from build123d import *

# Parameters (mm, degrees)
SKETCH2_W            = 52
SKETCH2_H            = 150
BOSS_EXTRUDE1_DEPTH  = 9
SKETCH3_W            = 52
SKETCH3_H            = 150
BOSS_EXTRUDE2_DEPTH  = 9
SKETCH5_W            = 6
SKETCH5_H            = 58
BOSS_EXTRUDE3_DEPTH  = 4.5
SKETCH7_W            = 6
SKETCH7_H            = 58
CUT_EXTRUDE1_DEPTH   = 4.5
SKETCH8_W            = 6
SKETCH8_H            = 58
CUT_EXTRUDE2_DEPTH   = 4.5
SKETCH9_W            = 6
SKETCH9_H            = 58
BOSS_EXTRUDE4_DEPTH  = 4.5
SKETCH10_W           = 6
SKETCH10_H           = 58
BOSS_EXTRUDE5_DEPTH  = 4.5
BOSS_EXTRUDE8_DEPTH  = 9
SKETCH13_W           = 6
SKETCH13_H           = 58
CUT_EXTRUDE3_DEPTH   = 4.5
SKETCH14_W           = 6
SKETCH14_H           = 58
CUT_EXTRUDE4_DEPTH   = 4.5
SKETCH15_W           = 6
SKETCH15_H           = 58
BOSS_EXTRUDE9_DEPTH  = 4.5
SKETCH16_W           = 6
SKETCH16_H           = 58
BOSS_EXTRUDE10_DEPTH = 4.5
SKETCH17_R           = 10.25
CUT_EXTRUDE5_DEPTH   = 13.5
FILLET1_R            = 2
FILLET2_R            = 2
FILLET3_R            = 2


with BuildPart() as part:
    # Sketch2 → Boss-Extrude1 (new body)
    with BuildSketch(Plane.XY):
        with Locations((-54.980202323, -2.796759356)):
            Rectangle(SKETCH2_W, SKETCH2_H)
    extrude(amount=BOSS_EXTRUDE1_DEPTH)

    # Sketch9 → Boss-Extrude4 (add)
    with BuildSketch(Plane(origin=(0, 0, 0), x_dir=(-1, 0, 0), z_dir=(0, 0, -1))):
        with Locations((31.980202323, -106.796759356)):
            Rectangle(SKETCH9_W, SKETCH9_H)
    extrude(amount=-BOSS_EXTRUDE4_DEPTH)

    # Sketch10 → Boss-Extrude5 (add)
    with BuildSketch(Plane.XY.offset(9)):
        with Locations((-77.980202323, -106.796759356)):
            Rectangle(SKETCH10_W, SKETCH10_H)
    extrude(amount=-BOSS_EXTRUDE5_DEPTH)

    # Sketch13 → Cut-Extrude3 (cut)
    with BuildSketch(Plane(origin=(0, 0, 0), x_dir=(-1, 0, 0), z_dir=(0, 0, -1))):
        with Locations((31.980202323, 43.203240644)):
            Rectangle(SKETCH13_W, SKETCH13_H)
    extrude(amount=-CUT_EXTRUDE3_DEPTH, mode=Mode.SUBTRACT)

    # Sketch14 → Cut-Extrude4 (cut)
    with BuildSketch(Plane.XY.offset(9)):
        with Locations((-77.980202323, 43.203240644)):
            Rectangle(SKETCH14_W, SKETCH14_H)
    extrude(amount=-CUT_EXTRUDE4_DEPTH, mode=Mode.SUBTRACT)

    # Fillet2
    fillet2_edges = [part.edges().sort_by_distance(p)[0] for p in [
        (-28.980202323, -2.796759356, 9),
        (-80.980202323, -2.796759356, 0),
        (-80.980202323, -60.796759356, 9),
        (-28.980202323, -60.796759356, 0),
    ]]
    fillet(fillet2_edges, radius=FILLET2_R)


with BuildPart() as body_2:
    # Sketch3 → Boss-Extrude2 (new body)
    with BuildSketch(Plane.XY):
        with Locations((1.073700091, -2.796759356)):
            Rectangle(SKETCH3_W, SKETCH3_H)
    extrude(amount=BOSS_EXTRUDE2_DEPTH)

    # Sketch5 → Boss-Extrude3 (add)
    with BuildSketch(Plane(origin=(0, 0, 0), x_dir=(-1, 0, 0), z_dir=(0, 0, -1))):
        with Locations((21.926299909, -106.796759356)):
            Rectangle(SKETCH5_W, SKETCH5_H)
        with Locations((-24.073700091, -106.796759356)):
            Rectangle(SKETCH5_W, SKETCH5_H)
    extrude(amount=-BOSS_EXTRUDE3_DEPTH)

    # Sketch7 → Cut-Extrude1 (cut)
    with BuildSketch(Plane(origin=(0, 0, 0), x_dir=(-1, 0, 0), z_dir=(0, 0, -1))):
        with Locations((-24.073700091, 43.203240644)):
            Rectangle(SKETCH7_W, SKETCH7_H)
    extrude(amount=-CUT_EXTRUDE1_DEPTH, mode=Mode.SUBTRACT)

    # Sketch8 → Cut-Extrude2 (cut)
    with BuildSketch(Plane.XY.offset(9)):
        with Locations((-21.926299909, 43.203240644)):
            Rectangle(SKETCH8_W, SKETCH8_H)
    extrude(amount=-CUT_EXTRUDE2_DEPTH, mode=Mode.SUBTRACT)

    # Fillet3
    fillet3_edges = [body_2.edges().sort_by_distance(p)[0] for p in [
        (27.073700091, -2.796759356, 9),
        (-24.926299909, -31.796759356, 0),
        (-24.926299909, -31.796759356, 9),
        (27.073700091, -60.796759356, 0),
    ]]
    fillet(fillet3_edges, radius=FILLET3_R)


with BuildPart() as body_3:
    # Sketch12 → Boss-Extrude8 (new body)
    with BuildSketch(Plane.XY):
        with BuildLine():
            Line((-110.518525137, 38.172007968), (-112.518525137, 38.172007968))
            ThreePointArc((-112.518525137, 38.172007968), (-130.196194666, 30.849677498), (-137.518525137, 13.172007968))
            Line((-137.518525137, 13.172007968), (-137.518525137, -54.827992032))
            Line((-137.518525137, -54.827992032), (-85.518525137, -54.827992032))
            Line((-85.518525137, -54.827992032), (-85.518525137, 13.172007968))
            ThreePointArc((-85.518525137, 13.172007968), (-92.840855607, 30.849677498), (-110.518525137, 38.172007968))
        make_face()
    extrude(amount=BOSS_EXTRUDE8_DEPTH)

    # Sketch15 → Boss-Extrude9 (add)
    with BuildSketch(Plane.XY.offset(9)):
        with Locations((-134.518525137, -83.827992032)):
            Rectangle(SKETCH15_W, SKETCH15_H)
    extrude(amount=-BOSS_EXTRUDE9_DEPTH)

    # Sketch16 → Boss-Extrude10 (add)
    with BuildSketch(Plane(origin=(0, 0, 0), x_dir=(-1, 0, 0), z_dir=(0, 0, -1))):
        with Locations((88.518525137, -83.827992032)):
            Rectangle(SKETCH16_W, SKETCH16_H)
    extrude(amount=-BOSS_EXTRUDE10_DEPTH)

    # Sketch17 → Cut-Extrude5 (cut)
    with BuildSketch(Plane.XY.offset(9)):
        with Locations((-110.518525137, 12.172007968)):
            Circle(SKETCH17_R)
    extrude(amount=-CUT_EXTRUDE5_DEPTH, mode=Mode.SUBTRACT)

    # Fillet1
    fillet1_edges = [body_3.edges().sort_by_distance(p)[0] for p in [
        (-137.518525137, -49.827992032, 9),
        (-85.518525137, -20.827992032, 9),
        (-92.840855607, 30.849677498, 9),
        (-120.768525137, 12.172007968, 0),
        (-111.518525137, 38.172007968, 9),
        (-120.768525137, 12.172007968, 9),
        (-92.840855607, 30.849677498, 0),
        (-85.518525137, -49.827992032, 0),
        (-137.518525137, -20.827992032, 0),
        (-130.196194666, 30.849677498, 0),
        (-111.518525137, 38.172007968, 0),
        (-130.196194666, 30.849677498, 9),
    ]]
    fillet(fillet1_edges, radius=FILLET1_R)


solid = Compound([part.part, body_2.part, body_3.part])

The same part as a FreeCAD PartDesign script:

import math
import FreeCAD as App
import Part
import Sketcher
from FreeCAD import Vector
Q = App.Units.Quantity


def edges_at(feature, points):
    """Names of the edges that pass closest to the given points."""
    edges = feature.Shape.Edges
    near = lambda p: min(range(len(edges)), key=lambda i: edges[i].distToShape(Part.Vertex(*p))[0])
    return sorted({f"Edge{near(p) + 1}" for p in points})

doc = App.newDocument("Part")
body = doc.addObject("PartDesign::Body", "Body")

# Sketch on XY plane
sketch1 = body.newObject("Sketcher::SketchObject", "Sketch")
sketch1.AttachmentSupport = (doc.getObject("XY_Plane"), [""])
sketch1.MapMode = "FlatFace"
sketch1.addGeometry([
    Part.LineSegment(Vector(-81, 72, 0), Vector(-81, -78, 0)),
    Part.LineSegment(Vector(-81, -78, 0), Vector(-29, -78, 0)),
    Part.LineSegment(Vector(-29, -78, 0), Vector(-29, 72, 0)),
    Part.LineSegment(Vector(-29, 72, 0), Vector(-81, 72, 0)),
], False)
sketch1.addConstraint([
    Sketcher.Constraint("Coincident", 0, 2, 1, 1),
    Sketcher.Constraint("Coincident", 1, 2, 2, 1),
    Sketcher.Constraint("Coincident", 2, 2, 3, 1),
    Sketcher.Constraint("Coincident", 3, 2, 0, 1),
    Sketcher.Constraint("Vertical", 0),
    Sketcher.Constraint("Horizontal", 1),
    Sketcher.Constraint("Vertical", 2),
    Sketcher.Constraint("Horizontal", 3),
    Sketcher.Constraint("DistanceX", 1, 1, 1, 2, Q("52 mm")),
    Sketcher.Constraint("DistanceY", 0, 2, 0, 1, Q("150 mm")),
    Sketcher.Constraint("DistanceY", 0, 2, -1, 1, Q("77.796759 mm")),
    Sketcher.Constraint("DistanceX", 0, 2, -1, 1, Q("80.980202 mm")),
])
pad1 = body.newObject("PartDesign::Pad", "Pad")
pad1.Profile = sketch1
pad1.Length = 9

# Sketch on XY plane
sketch2 = body.newObject("Sketcher::SketchObject", "Sketch001")
sketch2.AttachmentSupport = (doc.getObject("XY_Plane"), [""])
sketch2.MapMode = "FlatFace"
sketch2.addGeometry([
    Part.LineSegment(Vector(-29, -78, 0), Vector(-29, -136, 0)),
    Part.LineSegment(Vector(-29, -136, 0), Vector(-35, -136, 0)),
    Part.LineSegment(Vector(-35, -136, 0), Vector(-35, -78, 0)),
    Part.LineSegment(Vector(-35, -78, 0), Vector(-29, -78, 0)),
], False)
sketch2.addConstraint([
    Sketcher.Constraint("Coincident", 0, 2, 1, 1),
    Sketcher.Constraint("Coincident", 1, 2, 2, 1),
    Sketcher.Constraint("Coincident", 2, 2, 3, 1),
    Sketcher.Constraint("Coincident", 3, 2, 0, 1),
    Sketcher.Constraint("Vertical", 0),
    Sketcher.Constraint("Horizontal", 1),
    Sketcher.Constraint("Vertical", 2),
    Sketcher.Constraint("Horizontal", 3),
    Sketcher.Constraint("DistanceX", 1, 2, 1, 1, Q("6 mm")),
    Sketcher.Constraint("DistanceY", 0, 2, 0, 1, Q("58 mm")),
    Sketcher.Constraint("DistanceY", 0, 2, -1, 1, Q("135.796759 mm")),
    Sketcher.Constraint("DistanceX", 0, 2, -1, 1, Q("28.980202 mm")),
])
pad2 = body.newObject("PartDesign::Pad", "Pad001")
pad2.Profile = sketch2
pad2.Length = 4.5

# Sketch on XY plane
sketch3 = body.newObject("Sketcher::SketchObject", "Sketch002")
sketch3.AttachmentSupport = (doc.getObject("XY_Plane"), [""])
sketch3.MapMode = "FlatFace"
sketch3.AttachmentOffset = App.Placement(Vector(0, 0, 9), App.Rotation())
sketch3.addGeometry([
    Part.LineSegment(Vector(-81, -78, 0), Vector(-81, -136, 0)),
    Part.LineSegment(Vector(-81, -136, 0), Vector(-75, -136, 0)),
    Part.LineSegment(Vector(-75, -136, 0), Vector(-75, -78, 0)),
    Part.LineSegment(Vector(-75, -78, 0), Vector(-81, -78, 0)),
], False)
sketch3.addConstraint([
    Sketcher.Constraint("Coincident", 0, 2, 1, 1),
    Sketcher.Constraint("Coincident", 1, 2, 2, 1),
    Sketcher.Constraint("Coincident", 2, 2, 3, 1),
    Sketcher.Constraint("Coincident", 3, 2, 0, 1),
    Sketcher.Constraint("Vertical", 0),
    Sketcher.Constraint("Horizontal", 1),
    Sketcher.Constraint("Vertical", 2),
    Sketcher.Constraint("Horizontal", 3),
    Sketcher.Constraint("DistanceX", 1, 1, 1, 2, Q("6 mm")),
    Sketcher.Constraint("DistanceY", 0, 2, 0, 1, Q("58 mm")),
    Sketcher.Constraint("DistanceY", 0, 2, -1, 1, Q("135.796759 mm")),
    Sketcher.Constraint("DistanceX", 0, 2, -1, 1, Q("80.980202 mm")),
])
pad3 = body.newObject("PartDesign::Pad", "Pad002")
pad3.Profile = sketch3
pad3.Length = 4.5
pad3.Reversed = True

# Sketch on XY plane
sketch4 = body.newObject("Sketcher::SketchObject", "Sketch003")
sketch4.AttachmentSupport = (doc.getObject("XY_Plane"), [""])
sketch4.MapMode = "FlatFace"
sketch4.addGeometry([
    Part.LineSegment(Vector(-29, 72, 0), Vector(-29, 14, 0)),
    Part.LineSegment(Vector(-29, 14, 0), Vector(-35, 14, 0)),
    Part.LineSegment(Vector(-35, 14, 0), Vector(-35, 72, 0)),
    Part.LineSegment(Vector(-35, 72, 0), Vector(-29, 72, 0)),
], False)
sketch4.addConstraint([
    Sketcher.Constraint("Coincident", 0, 2, 1, 1),
    Sketcher.Constraint("Coincident", 1, 2, 2, 1),
    Sketcher.Constraint("Coincident", 2, 2, 3, 1),
    Sketcher.Constraint("Coincident", 3, 2, 0, 1),
    Sketcher.Constraint("Vertical", 0),
    Sketcher.Constraint("Horizontal", 1),
    Sketcher.Constraint("Vertical", 2),
    Sketcher.Constraint("Horizontal", 3),
    Sketcher.Constraint("DistanceX", 1, 2, 1, 1, Q("6 mm")),
    Sketcher.Constraint("DistanceY", 0, 2, 0, 1, Q("58 mm")),
    Sketcher.Constraint("DistanceY", -1, 1, 0, 2, Q("14.203241 mm")),
    Sketcher.Constraint("DistanceX", 0, 2, -1, 1, Q("28.980202 mm")),
])
pocket1 = body.newObject("PartDesign::Pocket", "Pocket")
pocket1.Profile = sketch4
pocket1.Length = 4.5
pocket1.Reversed = True

# Sketch on XY plane
sketch5 = body.newObject("Sketcher::SketchObject", "Sketch004")
sketch5.AttachmentSupport = (doc.getObject("XY_Plane"), [""])
sketch5.MapMode = "FlatFace"
sketch5.AttachmentOffset = App.Placement(Vector(0, 0, 9), App.Rotation())
sketch5.addGeometry([
    Part.LineSegment(Vector(-81, 72, 0), Vector(-81, 14, 0)),
    Part.LineSegment(Vector(-81, 14, 0), Vector(-75, 14, 0)),
    Part.LineSegment(Vector(-75, 14, 0), Vector(-75, 72, 0)),
    Part.LineSegment(Vector(-75, 72, 0), Vector(-81, 72, 0)),
], False)
sketch5.addConstraint([
    Sketcher.Constraint("Coincident", 0, 2, 1, 1),
    Sketcher.Constraint("Coincident", 1, 2, 2, 1),
    Sketcher.Constraint("Coincident", 2, 2, 3, 1),
    Sketcher.Constraint("Coincident", 3, 2, 0, 1),
    Sketcher.Constraint("Vertical", 0),
    Sketcher.Constraint("Horizontal", 1),
    Sketcher.Constraint("Vertical", 2),
    Sketcher.Constraint("Horizontal", 3),
    Sketcher.Constraint("DistanceX", 1, 1, 1, 2, Q("6 mm")),
    Sketcher.Constraint("DistanceY", 0, 2, 0, 1, Q("58 mm")),
    Sketcher.Constraint("DistanceY", -1, 1, 0, 2, Q("14.203241 mm")),
    Sketcher.Constraint("DistanceX", 0, 2, -1, 1, Q("80.980202 mm")),
])
pocket2 = body.newObject("PartDesign::Pocket", "Pocket001")
pocket2.Profile = sketch5
pocket2.Length = 4.5
doc.recompute()

fillet = body.newObject("PartDesign::Fillet", "Fillet")
fillet.Base = (pocket2, edges_at(pocket2, [
    (-28.98, -2.797, 9),
    (-80.98, -2.797, 0),
    (-80.98, -60.797, 9),
    (-28.98, -60.797, 0),
]))
fillet.Radius = 2
body2 = doc.addObject("PartDesign::Body", "Body001")

# Sketch on XY plane
sketch6 = body2.newObject("Sketcher::SketchObject", "Sketch005")
sketch6.AttachmentSupport = (doc.getObject("XY_Plane001"), [""])
sketch6.MapMode = "FlatFace"
sketch6.addGeometry([
    Part.LineSegment(Vector(-25, 72, 0), Vector(-25, -78, 0)),
    Part.LineSegment(Vector(-25, -78, 0), Vector(27, -78, 0)),
    Part.LineSegment(Vector(27, -78, 0), Vector(27, 72, 0)),
    Part.LineSegment(Vector(27, 72, 0), Vector(-25, 72, 0)),
], False)
sketch6.addConstraint([
    Sketcher.Constraint("Coincident", 0, 2, 1, 1),
    Sketcher.Constraint("Coincident", 1, 2, 2, 1),
    Sketcher.Constraint("Coincident", 2, 2, 3, 1),
    Sketcher.Constraint("Coincident", 3, 2, 0, 1),
    Sketcher.Constraint("Vertical", 0),
    Sketcher.Constraint("Horizontal", 1),
    Sketcher.Constraint("Vertical", 2),
    Sketcher.Constraint("Horizontal", 3),
    Sketcher.Constraint("DistanceX", 1, 1, 1, 2, Q("52 mm")),
    Sketcher.Constraint("DistanceY", 0, 2, 0, 1, Q("150 mm")),
    Sketcher.Constraint("DistanceX", 0, 2, -1, 1, Q("24.9263 mm")),
    Sketcher.Constraint("DistanceY", 0, 2, -1, 1, Q("77.796759 mm")),
])
pad4 = body2.newObject("PartDesign::Pad", "Pad003")
pad4.Profile = sketch6
pad4.Length = 9

# Sketch on XY plane
sketch7 = body2.newObject("Sketcher::SketchObject", "Sketch006")
sketch7.AttachmentSupport = (doc.getObject("XY_Plane001"), [""])
sketch7.MapMode = "FlatFace"
sketch7.addGeometry([
    Part.LineSegment(Vector(-19, -78, 0), Vector(-19, -136, 0)),  # 0
    Part.LineSegment(Vector(-19, -136, 0), Vector(-25, -136, 0)),  # 1
    Part.LineSegment(Vector(-25, -136, 0), Vector(-25, -78, 0)),  # 2
    Part.LineSegment(Vector(-25, -78, 0), Vector(-19, -78, 0)),  # 3
    Part.LineSegment(Vector(27, -78, 0), Vector(27, -136, 0)),  # 4
    Part.LineSegment(Vector(27, -136, 0), Vector(21, -136, 0)),  # 5
    Part.LineSegment(Vector(21, -136, 0), Vector(21, -78, 0)),  # 6
    Part.LineSegment(Vector(21, -78, 0), Vector(27, -78, 0)),  # 7
], False)
sketch7.addConstraint([
    Sketcher.Constraint("Coincident", 0, 2, 1, 1),
    Sketcher.Constraint("Coincident", 1, 2, 2, 1),
    Sketcher.Constraint("Coincident", 2, 2, 3, 1),
    Sketcher.Constraint("Coincident", 3, 2, 0, 1),
    Sketcher.Constraint("Coincident", 4, 2, 5, 1),
    Sketcher.Constraint("Coincident", 5, 2, 6, 1),
    Sketcher.Constraint("Coincident", 6, 2, 7, 1),
    Sketcher.Constraint("Coincident", 7, 2, 4, 1),
    Sketcher.Constraint("Vertical", 0),
    Sketcher.Constraint("Horizontal", 1),
    Sketcher.Constraint("Vertical", 2),
    Sketcher.Constraint("Horizontal", 3),
    Sketcher.Constraint("Vertical", 4),
    Sketcher.Constraint("Horizontal", 5),
    Sketcher.Constraint("Vertical", 6),
    Sketcher.Constraint("Horizontal", 7),
    Sketcher.Constraint("Horizontal", 1, 2, 4, 2),
    Sketcher.Constraint("Horizontal", 3, 2, 6, 2),
    Sketcher.Constraint("Equal", 3, 5),
    Sketcher.Constraint("DistanceX", 1, 2, 1, 1, Q("6 mm")),
    Sketcher.Constraint("DistanceY", 0, 2, 0, 1, Q("58 mm")),
    Sketcher.Constraint("DistanceX", 0, 2, 4, 2, Q("46 mm")),
    Sketcher.Constraint("DistanceX", 0, 2, -1, 1, Q("18.9263 mm")),
    Sketcher.Constraint("DistanceY", 0, 2, -1, 1, Q("135.796759 mm")),
])
pad5 = body2.newObject("PartDesign::Pad", "Pad004")
pad5.Profile = sketch7
pad5.Length = 4.5

# Sketch on XY plane
sketch8 = body2.newObject("Sketcher::SketchObject", "Sketch007")
sketch8.AttachmentSupport = (doc.getObject("XY_Plane001"), [""])
sketch8.MapMode = "FlatFace"
sketch8.addGeometry([
    Part.LineSegment(Vector(27, 72, 0), Vector(27, 14, 0)),
    Part.LineSegment(Vector(27, 14, 0), Vector(21, 14, 0)),
    Part.LineSegment(Vector(21, 14, 0), Vector(21, 72, 0)),
    Part.LineSegment(Vector(21, 72, 0), Vector(27, 72, 0)),
], False)
sketch8.addConstraint([
    Sketcher.Constraint("Coincident", 0, 2, 1, 1),
    Sketcher.Constraint("Coincident", 1, 2, 2, 1),
    Sketcher.Constraint("Coincident", 2, 2, 3, 1),
    Sketcher.Constraint("Coincident", 3, 2, 0, 1),
    Sketcher.Constraint("Vertical", 0),
    Sketcher.Constraint("Horizontal", 1),
    Sketcher.Constraint("Vertical", 2),
    Sketcher.Constraint("Horizontal", 3),
    Sketcher.Constraint("DistanceX", 1, 2, 1, 1, Q("6 mm")),
    Sketcher.Constraint("DistanceY", 0, 2, 0, 1, Q("58 mm")),
    Sketcher.Constraint("DistanceX", -1, 1, 0, 2, Q("27.0737 mm")),
    Sketcher.Constraint("DistanceY", -1, 1, 0, 2, Q("14.203241 mm")),
])
pocket3 = body2.newObject("PartDesign::Pocket", "Pocket002")
pocket3.Profile = sketch8
pocket3.Length = 4.5
pocket3.Reversed = True

# Sketch on XY plane
sketch9 = body2.newObject("Sketcher::SketchObject", "Sketch008")
sketch9.AttachmentSupport = (doc.getObject("XY_Plane001"), [""])
sketch9.MapMode = "FlatFace"
sketch9.AttachmentOffset = App.Placement(Vector(0, 0, 9), App.Rotation())
sketch9.addGeometry([
    Part.LineSegment(Vector(-25, 72, 0), Vector(-25, 14, 0)),
    Part.LineSegment(Vector(-25, 14, 0), Vector(-19, 14, 0)),
    Part.LineSegment(Vector(-19, 14, 0), Vector(-19, 72, 0)),
    Part.LineSegment(Vector(-19, 72, 0), Vector(-25, 72, 0)),
], False)
sketch9.addConstraint([
    Sketcher.Constraint("Coincident", 0, 2, 1, 1),
    Sketcher.Constraint("Coincident", 1, 2, 2, 1),
    Sketcher.Constraint("Coincident", 2, 2, 3, 1),
    Sketcher.Constraint("Coincident", 3, 2, 0, 1),
    Sketcher.Constraint("Vertical", 0),
    Sketcher.Constraint("Horizontal", 1),
    Sketcher.Constraint("Vertical", 2),
    Sketcher.Constraint("Horizontal", 3),
    Sketcher.Constraint("DistanceX", 1, 1, 1, 2, Q("6 mm")),
    Sketcher.Constraint("DistanceY", 0, 2, 0, 1, Q("58 mm")),
    Sketcher.Constraint("DistanceX", 0, 2, -1, 1, Q("24.9263 mm")),
    Sketcher.Constraint("DistanceY", -1, 1, 0, 2, Q("14.203241 mm")),
])
pocket4 = body2.newObject("PartDesign::Pocket", "Pocket003")
pocket4.Profile = sketch9
pocket4.Length = 4.5
doc.recompute()

fillet2 = body2.newObject("PartDesign::Fillet", "Fillet001")
fillet2.Base = (pocket4, edges_at(pocket4, [
    (27.074, -2.797, 9),
    (-24.926, -31.797, 0),
    (-24.926, -31.797, 9),
    (27.074, -60.797, 0),
]))
fillet2.Radius = 2
body3 = doc.addObject("PartDesign::Body", "Body002")

# Sketch on XY plane
sketch10 = body3.newObject("Sketcher::SketchObject", "Sketch009")
sketch10.AttachmentSupport = (doc.getObject("XY_Plane002"), [""])
sketch10.MapMode = "FlatFace"
sketch10.addGeometry([
    Part.LineSegment(Vector(-110.5, 38.2, 0), Vector(-112.5, 38.2, 0)),  # 0
    Part.ArcOfCircle(Part.Circle(Vector(-112.5, 13.2, 0), Vector(0, 0, 1), 25), math.radians(90), math.radians(180)),  # 1
    Part.LineSegment(Vector(-137.5, 13.2, 0), Vector(-137.5, -54.8, 0)),  # 2
    Part.LineSegment(Vector(-137.5, -54.8, 0), Vector(-85.5, -54.8, 0)),  # 3
    Part.LineSegment(Vector(-85.5, -54.8, 0), Vector(-85.5, 13.2, 0)),  # 4
    Part.ArcOfCircle(Part.Circle(Vector(-110.5, 13.2, 0), Vector(0, 0, 1), 25), math.radians(0), math.radians(90)),  # 5
], False)
sketch10.addConstraint([
    Sketcher.Constraint("Tangent", 0, 2, 1, 1),
    Sketcher.Constraint("Tangent", 1, 2, 2, 1),
    Sketcher.Constraint("Coincident", 2, 2, 3, 1),
    Sketcher.Constraint("Coincident", 3, 2, 4, 1),
    Sketcher.Constraint("Tangent", 4, 2, 5, 1),
    Sketcher.Constraint("Tangent", 5, 2, 0, 1),
    Sketcher.Constraint("Horizontal", 0),
    Sketcher.Constraint("Vertical", 2),
    Sketcher.Constraint("Horizontal", 3),
    Sketcher.Constraint("Vertical", 4),
    Sketcher.Constraint("Equal", 1, 5),
    Sketcher.Constraint("Radius", 1, Q("25 mm")),
    Sketcher.Constraint("DistanceX", 0, 2, 0, 1, Q("2 mm")),
    Sketcher.Constraint("DistanceY", 2, 2, 2, 1, Q("68 mm")),
    Sketcher.Constraint("DistanceX", 1, 3, -1, 1, Q("112.518525 mm")),
    Sketcher.Constraint("DistanceY", -1, 1, 1, 3, Q("13.172008 mm")),
])
pad6 = body3.newObject("PartDesign::Pad", "Pad005")
pad6.Profile = sketch10
pad6.Length = 9

# Sketch on XY plane
sketch11 = body3.newObject("Sketcher::SketchObject", "Sketch010")
sketch11.AttachmentSupport = (doc.getObject("XY_Plane002"), [""])
sketch11.MapMode = "FlatFace"
sketch11.AttachmentOffset = App.Placement(Vector(0, 0, 9), App.Rotation())
sketch11.addGeometry([
    Part.LineSegment(Vector(-138, -55, 0), Vector(-138, -113, 0)),
    Part.LineSegment(Vector(-138, -113, 0), Vector(-132, -113, 0)),
    Part.LineSegment(Vector(-132, -113, 0), Vector(-132, -55, 0)),
    Part.LineSegment(Vector(-132, -55, 0), Vector(-138, -55, 0)),
], False)
sketch11.addConstraint([
    Sketcher.Constraint("Coincident", 0, 2, 1, 1),
    Sketcher.Constraint("Coincident", 1, 2, 2, 1),
    Sketcher.Constraint("Coincident", 2, 2, 3, 1),
    Sketcher.Constraint("Coincident", 3, 2, 0, 1),
    Sketcher.Constraint("Vertical", 0),
    Sketcher.Constraint("Horizontal", 1),
    Sketcher.Constraint("Vertical", 2),
    Sketcher.Constraint("Horizontal", 3),
    Sketcher.Constraint("DistanceX", 1, 1, 1, 2, Q("6 mm")),
    Sketcher.Constraint("DistanceY", 0, 2, 0, 1, Q("58 mm")),
    Sketcher.Constraint("DistanceX", 0, 2, -1, 1, Q("137.518525 mm")),
    Sketcher.Constraint("DistanceY", 0, 2, -1, 1, Q("112.827992 mm")),
])
pad7 = body3.newObject("PartDesign::Pad", "Pad006")
pad7.Profile = sketch11
pad7.Length = 4.5
pad7.Reversed = True

# Sketch on XY plane
sketch12 = body3.newObject("Sketcher::SketchObject", "Sketch011")
sketch12.AttachmentSupport = (doc.getObject("XY_Plane002"), [""])
sketch12.MapMode = "FlatFace"
sketch12.addGeometry([
    Part.LineSegment(Vector(-86, -55, 0), Vector(-86, -113, 0)),
    Part.LineSegment(Vector(-86, -113, 0), Vector(-92, -113, 0)),
    Part.LineSegment(Vector(-92, -113, 0), Vector(-92, -55, 0)),
    Part.LineSegment(Vector(-92, -55, 0), Vector(-86, -55, 0)),
], False)
sketch12.addConstraint([
    Sketcher.Constraint("Coincident", 0, 2, 1, 1),
    Sketcher.Constraint("Coincident", 1, 2, 2, 1),
    Sketcher.Constraint("Coincident", 2, 2, 3, 1),
    Sketcher.Constraint("Coincident", 3, 2, 0, 1),
    Sketcher.Constraint("Vertical", 0),
    Sketcher.Constraint("Horizontal", 1),
    Sketcher.Constraint("Vertical", 2),
    Sketcher.Constraint("Horizontal", 3),
    Sketcher.Constraint("DistanceX", 1, 2, 1, 1, Q("6 mm")),
    Sketcher.Constraint("DistanceY", 0, 2, 0, 1, Q("58 mm")),
    Sketcher.Constraint("DistanceX", 0, 2, -1, 1, Q("85.518525 mm")),
    Sketcher.Constraint("DistanceY", 0, 2, -1, 1, Q("112.827992 mm")),
])
pad8 = body3.newObject("PartDesign::Pad", "Pad007")
pad8.Profile = sketch12
pad8.Length = 4.5

# Sketch on XY plane
sketch13 = body3.newObject("Sketcher::SketchObject", "Sketch012")
sketch13.AttachmentSupport = (doc.getObject("XY_Plane002"), [""])
sketch13.MapMode = "FlatFace"
sketch13.AttachmentOffset = App.Placement(Vector(0, 0, 9), App.Rotation())
sketch13.addGeometry(Part.Circle(Vector(-111, 12, 0), Vector(0, 0, 1), 10), False)
sketch13.addConstraint([
    Sketcher.Constraint("Diameter", 0, Q("20.5 mm")),
    Sketcher.Constraint("DistanceX", 0, 3, -1, 1, Q("110.518525 mm")),
    Sketcher.Constraint("DistanceY", -1, 1, 0, 3, Q("12.172008 mm")),
])
pocket5 = body3.newObject("PartDesign::Pocket", "Pocket004")
pocket5.Profile = sketch13
pocket5.Length = 13.5
doc.recompute()

fillet3 = body3.newObject("PartDesign::Fillet", "Fillet002")
fillet3.Base = (pocket5, edges_at(pocket5, [
    (-137.519, -49.828, 9),
    (-85.519, -20.828, 9),
    (-92.841, 30.85, 9),
    (-120.769, 12.172, 0),
    (-111.519, 38.172, 9),
    (-120.769, 12.172, 9),
    (-92.841, 30.85, 0),
    (-85.519, -49.828, 0),
    (-137.519, -20.828, 0),
    (-130.196, 30.85, 0),
    (-111.519, 38.172, 0),
    (-130.196, 30.85, 9),
]))
fillet3.Radius = 2

doc.recompute()
